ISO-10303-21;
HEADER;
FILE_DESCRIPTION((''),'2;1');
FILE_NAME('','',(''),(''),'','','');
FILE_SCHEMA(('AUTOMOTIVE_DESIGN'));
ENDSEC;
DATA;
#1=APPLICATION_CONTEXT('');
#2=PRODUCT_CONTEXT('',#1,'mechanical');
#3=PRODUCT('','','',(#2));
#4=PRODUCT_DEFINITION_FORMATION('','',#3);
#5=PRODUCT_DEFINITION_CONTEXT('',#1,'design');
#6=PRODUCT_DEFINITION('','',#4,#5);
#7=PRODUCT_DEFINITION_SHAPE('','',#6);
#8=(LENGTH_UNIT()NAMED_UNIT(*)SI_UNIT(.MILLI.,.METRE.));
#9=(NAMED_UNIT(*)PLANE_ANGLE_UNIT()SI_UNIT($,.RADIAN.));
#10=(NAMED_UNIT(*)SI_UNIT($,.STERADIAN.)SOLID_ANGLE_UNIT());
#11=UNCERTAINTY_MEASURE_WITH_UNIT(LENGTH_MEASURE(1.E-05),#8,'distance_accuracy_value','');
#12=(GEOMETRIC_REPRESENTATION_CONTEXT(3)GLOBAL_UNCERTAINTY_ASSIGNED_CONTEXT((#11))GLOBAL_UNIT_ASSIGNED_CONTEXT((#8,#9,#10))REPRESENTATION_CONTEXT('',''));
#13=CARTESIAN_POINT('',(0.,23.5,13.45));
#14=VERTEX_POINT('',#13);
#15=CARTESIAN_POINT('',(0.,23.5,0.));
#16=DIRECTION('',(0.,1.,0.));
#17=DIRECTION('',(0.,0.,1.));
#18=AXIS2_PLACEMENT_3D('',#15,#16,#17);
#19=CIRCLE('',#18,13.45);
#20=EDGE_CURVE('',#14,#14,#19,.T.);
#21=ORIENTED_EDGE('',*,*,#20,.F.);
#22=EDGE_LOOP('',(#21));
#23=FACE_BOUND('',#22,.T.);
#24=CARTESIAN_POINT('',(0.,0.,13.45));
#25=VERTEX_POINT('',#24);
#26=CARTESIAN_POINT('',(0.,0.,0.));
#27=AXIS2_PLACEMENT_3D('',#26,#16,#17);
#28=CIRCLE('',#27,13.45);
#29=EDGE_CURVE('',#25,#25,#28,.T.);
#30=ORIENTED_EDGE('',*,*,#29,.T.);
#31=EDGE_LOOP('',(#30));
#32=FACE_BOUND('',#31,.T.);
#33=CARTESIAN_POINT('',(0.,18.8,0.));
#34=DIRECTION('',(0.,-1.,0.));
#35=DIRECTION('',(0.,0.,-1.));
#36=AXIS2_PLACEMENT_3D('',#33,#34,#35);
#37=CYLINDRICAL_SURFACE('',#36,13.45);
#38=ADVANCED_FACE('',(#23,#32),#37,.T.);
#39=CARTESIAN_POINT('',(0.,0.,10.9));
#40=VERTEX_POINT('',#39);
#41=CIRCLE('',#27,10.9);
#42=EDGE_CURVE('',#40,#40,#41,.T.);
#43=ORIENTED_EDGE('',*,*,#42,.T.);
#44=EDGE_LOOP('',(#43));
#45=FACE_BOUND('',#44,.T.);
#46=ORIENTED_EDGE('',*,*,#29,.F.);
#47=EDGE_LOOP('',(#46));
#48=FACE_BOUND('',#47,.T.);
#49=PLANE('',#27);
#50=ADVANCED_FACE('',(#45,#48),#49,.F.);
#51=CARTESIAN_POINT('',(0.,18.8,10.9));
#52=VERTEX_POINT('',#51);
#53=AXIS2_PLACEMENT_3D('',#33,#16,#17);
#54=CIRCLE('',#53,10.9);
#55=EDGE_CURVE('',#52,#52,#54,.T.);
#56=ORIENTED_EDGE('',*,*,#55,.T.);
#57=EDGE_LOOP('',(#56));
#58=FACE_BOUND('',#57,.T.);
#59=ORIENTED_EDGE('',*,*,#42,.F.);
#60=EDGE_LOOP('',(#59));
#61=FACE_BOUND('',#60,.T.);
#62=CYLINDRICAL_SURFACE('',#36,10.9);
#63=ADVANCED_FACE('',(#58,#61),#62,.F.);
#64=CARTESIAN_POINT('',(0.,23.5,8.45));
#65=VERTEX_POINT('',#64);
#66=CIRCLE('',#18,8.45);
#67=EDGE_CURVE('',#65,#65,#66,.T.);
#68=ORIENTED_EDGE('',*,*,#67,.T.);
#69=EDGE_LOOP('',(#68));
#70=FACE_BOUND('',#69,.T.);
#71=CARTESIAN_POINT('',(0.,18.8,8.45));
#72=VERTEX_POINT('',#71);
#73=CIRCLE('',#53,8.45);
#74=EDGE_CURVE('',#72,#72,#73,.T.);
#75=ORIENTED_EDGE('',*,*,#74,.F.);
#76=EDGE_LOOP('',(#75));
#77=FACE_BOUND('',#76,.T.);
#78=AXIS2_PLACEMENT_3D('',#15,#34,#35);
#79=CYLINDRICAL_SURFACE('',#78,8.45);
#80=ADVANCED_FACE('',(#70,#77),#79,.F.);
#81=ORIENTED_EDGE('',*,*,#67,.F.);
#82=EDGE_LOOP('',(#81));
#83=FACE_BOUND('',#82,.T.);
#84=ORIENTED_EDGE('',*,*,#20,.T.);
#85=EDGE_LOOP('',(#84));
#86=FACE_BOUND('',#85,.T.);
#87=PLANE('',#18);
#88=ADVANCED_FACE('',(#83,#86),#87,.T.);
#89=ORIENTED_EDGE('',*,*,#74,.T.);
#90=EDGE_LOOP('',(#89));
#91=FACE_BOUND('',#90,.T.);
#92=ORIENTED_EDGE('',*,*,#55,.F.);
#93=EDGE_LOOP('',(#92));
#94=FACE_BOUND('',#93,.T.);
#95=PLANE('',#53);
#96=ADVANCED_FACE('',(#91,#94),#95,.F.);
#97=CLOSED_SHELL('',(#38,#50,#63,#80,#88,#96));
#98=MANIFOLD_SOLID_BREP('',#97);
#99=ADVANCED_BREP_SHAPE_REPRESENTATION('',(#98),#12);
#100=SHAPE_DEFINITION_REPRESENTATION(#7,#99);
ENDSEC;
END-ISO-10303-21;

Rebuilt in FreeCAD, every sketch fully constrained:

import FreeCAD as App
import Part
import Sketcher
Q = App.Units.Quantity

doc = App.newDocument("Part")
body = doc.addObject("PartDesign::Body", "Body")

sketch1 = body.newObject("Sketcher::SketchObject", "Sketch")
sketch1.AttachmentSupport = (doc.getObject("XZ_Plane"), [""])
sketch1.MapMode = "FlatFace"
sketch1.addGeometry(Part.Circle(App.Vector(0, 0, 0), App.Vector(0, 0, 1), 13), False)
sketch1.addGeometry(Part.Circle(App.Vector(0, 0, 0), App.Vector(0, 0, 1), 11), False)
sketch1.addConstraint(Sketcher.Constraint("Coincident", 0, 3, -1, 1))
sketch1.addConstraint(Sketcher.Constraint("Coincident", 1, 3, -1, 1))
sketch1.addConstraint(Sketcher.Constraint("Diameter", 0, Q("26.9 mm")))
sketch1.addConstraint(Sketcher.Constraint("Diameter", 1, Q("21.8 mm")))
pad1 = body.newObject("PartDesign::Pad", "Pad")
pad1.Profile = sketch1
pad1.Length = 18.8
pad1.Reversed = True

sketch2 = body.newObject("Sketcher::SketchObject", "Sketch001")
sketch2.AttachmentSupport = (doc.getObject("XZ_Plane"), [""])
sketch2.MapMode = "FlatFace"
sketch2.AttachmentOffset = App.Placement(App.Vector(0, 0, -18.8), App.Rotation())
sketch2.addGeometry(Part.Circle(App.Vector(0, 0, 0), App.Vector(0, 0, 1), 13), False)
sketch2.addGeometry(Part.Circle(App.Vector(0, 0, 0), App.Vector(0, 0, 1), 8), False)
sketch2.addConstraint(Sketcher.Constraint("Coincident", 0, 3, -1, 1))
sketch2.addConstraint(Sketcher.Constraint("Coincident", 1, 3, -1, 1))
sketch2.addConstraint(Sketcher.Constraint("Diameter", 0, Q("26.9 mm")))
sketch2.addConstraint(Sketcher.Constraint("Diameter", 1, Q("16.9 mm")))
pad2 = body.newObject("PartDesign::Pad", "Pad001")
pad2.Profile = sketch2
pad2.Length = 4.7
pad2.Reversed = True

doc.recompute()
